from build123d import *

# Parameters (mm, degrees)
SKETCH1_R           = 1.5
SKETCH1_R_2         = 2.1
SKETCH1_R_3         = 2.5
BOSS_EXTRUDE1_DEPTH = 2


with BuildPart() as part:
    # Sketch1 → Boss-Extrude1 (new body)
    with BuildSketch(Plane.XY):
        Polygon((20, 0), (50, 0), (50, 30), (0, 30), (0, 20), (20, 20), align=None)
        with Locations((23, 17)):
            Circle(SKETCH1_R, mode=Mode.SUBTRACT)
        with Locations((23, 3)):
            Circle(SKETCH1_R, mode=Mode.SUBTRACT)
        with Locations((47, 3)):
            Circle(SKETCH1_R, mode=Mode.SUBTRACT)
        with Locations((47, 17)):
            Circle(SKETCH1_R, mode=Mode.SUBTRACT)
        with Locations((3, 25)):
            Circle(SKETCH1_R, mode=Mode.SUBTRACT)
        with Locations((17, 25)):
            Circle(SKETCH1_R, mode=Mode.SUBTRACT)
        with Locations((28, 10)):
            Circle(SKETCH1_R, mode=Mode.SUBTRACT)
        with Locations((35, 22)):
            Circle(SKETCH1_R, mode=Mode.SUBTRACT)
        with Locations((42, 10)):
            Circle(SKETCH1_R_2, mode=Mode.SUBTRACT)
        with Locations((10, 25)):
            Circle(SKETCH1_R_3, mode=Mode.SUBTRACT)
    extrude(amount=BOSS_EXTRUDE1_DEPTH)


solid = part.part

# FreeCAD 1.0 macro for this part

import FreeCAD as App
import Part
import Sketcher

doc = App.newDocument("Part")
body = doc.addObject("PartDesign::Body", "Body")

# Sketch on XY plane
sketch1 = doc.addObject("Sketcher::SketchObject", "Sketch")
body.addObject(sketch1)
sketch1.AttachmentSupport = (doc.XY_Plane, [""])
sketch1.MapMode = "FlatFace"
sketch1.addGeometry([
    Part.LineSegment(App.Vector(20, 0, 0), App.Vector(50, 0, 0)),  # 0
    Part.LineSegment(App.Vector(50, 0, 0), App.Vector(50, 30, 0)),  # 1
    Part.LineSegment(App.Vector(50, 30, 0), App.Vector(0, 30, 0)),  # 2
    Part.LineSegment(App.Vector(0, 30, 0), App.Vector(0, 20, 0)),  # 3
    Part.LineSegment(App.Vector(0, 20, 0), App.Vector(20, 20, 0)),  # 4
    Part.LineSegment(App.Vector(20, 20, 0), App.Vector(20, 0, 0)),  # 5
    Part.Circle(App.Vector(23, 3, 0), App.Vector(0, 0, 1), 1.5),  # 6
    Part.Circle(App.Vector(47, 3, 0), App.Vector(0, 0, 1), 1.5),  # 7
    Part.Circle(App.Vector(28, 10, 0), App.Vector(0, 0, 1), 1.5),  # 8
    Part.Circle(App.Vector(42, 10, 0), App.Vector(0, 0, 1), 2.1),  # 9
    Part.Circle(App.Vector(23, 17, 0), App.Vector(0, 0, 1), 1.5),  # 10
    Part.Circle(App.Vector(3, 25, 0), App.Vector(0, 0, 1), 1.5),  # 11
    Part.Circle(App.Vector(10, 25, 0), App.Vector(0, 0, 1), 2.5),  # 12
    Part.Circle(App.Vector(17, 25, 0), App.Vector(0, 0, 1), 1.5),  # 13
    Part.Circle(App.Vector(47, 17, 0), App.Vector(0, 0, 1), 1.5),  # 14
    Part.Circle(App.Vector(35, 22, 0), App.Vector(0, 0, 1), 1.5),  # 15
], False)
sketch1.addConstraint([
    Sketcher.Constraint("Coincident", 0, 2, 1, 1),
    Sketcher.Constraint("Coincident", 1, 2, 2, 1),
    Sketcher.Constraint("Coincident", 2, 2, 3, 1),
    Sketcher.Constraint("Coincident", 3, 2, 4, 1),
    Sketcher.Constraint("Coincident", 4, 2, 5, 1),
    Sketcher.Constraint("Coincident", 5, 2, 0, 1),
    Sketcher.Constraint("Horizontal", 0),
    Sketcher.Constraint("Vertical", 1),
    Sketcher.Constraint("Horizontal", 2),
    Sketcher.Constraint("Vertical", 3),
    Sketcher.Constraint("Horizontal", 4),
    Sketcher.Constraint("Vertical", 5),
    Sketcher.Constraint("Equal", 6, 7),
    Sketcher.Constraint("Equal", 7, 8),
    Sketcher.Constraint("Equal", 8, 10),
    Sketcher.Constraint("Equal", 10, 11),
    Sketcher.Constraint("Equal", 11, 13),
    Sketcher.Constraint("Equal", 13, 14),
    Sketcher.Constraint("Equal", 14, 15),
    Sketcher.Constraint("PointOnObject", 0, 2, -1),
    Sketcher.Constraint("PointOnObject", 2, 2, -2),
    Sketcher.Constraint("Horizontal", 6, 3, 7, 3),
    Sketcher.Constraint("Horizontal", 8, 3, 9, 3),
    Sketcher.Constraint("Horizontal", 11, 3, 12, 3),
    Sketcher.Constraint("Horizontal", 12, 3, 13, 3),
    Sketcher.Constraint("Horizontal", 10, 3, 14, 3),
    Sketcher.Constraint("Vertical", 6, 3, 10, 3),
    Sketcher.Constraint("Vertical", 7, 3, 14, 3),
    Sketcher.Constraint("Equal", 0, 1),
    Sketcher.Constraint("Equal", 4, 5),
    Sketcher.Constraint("Diameter", 6, 3.0),
    Sketcher.Constraint("Diameter", 12, 5.0),
    Sketcher.Constraint("Diameter", 9, 4.2),
    Sketcher.Constraint("DistanceX", 0, 1, 0, 2, 30.0),
    Sketcher.Constraint("DistanceX", 2, 2, 2, 1, 50.0),
    Sketcher.Constraint("DistanceX", -1, 1, 6, 3, 23.0),
    Sketcher.Constraint("DistanceY", -1, 1, 6, 3, 3.0),
    Sketcher.Constraint("DistanceX", -1, 1, 7, 3, 47.0),
    Sketcher.Constraint("DistanceX", -1, 1, 8, 3, 28.0),
    Sketcher.Constraint("DistanceY", -1, 1, 8, 3, 10.0),
    Sketcher.Constraint("DistanceX", -1, 1, 9, 3, 42.0),
    Sketcher.Constraint("DistanceY", -1, 1, 10, 3, 17.0),
    Sketcher.Constraint("DistanceX", -1, 1, 11, 3, 3.0),
    Sketcher.Constraint("DistanceY", -1, 1, 11, 3, 25.0),
    Sketcher.Constraint("DistanceX", -1, 1, 12, 3, 10.0),
    Sketcher.Constraint("DistanceX", -1, 1, 13, 3, 17.0),
    Sketcher.Constraint("DistanceX", -1, 1, 15, 3, 35.0),
    Sketcher.Constraint("DistanceY", -1, 1, 15, 3, 22.0),
])
pad1 = doc.addObject("PartDesign::Pad", "Pad")
body.addObject(pad1)
pad1.Profile = sketch1
pad1.Length = 2

doc.recompute()
